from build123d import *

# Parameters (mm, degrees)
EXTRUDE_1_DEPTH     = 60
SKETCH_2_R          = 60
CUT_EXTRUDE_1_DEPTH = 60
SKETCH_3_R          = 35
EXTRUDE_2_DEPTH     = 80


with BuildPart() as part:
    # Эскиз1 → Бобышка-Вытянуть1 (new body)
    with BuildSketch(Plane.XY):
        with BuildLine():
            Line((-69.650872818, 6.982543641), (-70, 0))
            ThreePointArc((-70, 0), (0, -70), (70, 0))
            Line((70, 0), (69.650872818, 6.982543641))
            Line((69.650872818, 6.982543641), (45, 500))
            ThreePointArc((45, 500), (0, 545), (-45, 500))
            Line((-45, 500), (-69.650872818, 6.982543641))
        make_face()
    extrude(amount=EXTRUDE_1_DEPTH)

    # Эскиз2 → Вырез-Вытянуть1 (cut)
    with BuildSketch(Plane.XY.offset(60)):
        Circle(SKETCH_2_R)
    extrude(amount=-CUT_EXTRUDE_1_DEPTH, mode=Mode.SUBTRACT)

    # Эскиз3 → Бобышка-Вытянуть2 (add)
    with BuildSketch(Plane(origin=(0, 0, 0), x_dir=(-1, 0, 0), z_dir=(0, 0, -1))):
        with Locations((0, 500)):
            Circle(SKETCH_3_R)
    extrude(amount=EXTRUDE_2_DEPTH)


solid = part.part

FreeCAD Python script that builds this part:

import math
import FreeCAD as App
import Part
import Sketcher
Q = App.Units.Quantity

doc = App.newDocument("Part")
params = doc.addObject("Spreadsheet::Sheet", "Params")
for row, (alias, value) in enumerate([
    ("sketch1_radius", "70 mm"),
    ("sketch1_radius2", "45 mm"),
    ("pad1_length", "60 mm"),
    ("sketch2_diameter", "120 mm"),
    ("pocket1_length", "60 mm"),
    ("sketch3_diameter", "70 mm"),
    ("pad2_length", "80 mm"),
], start=1):
    params.set(f"A{row}", alias)
    params.set(f"B{row}", "=" + value)
    params.setAlias(f"B{row}", alias)

body = doc.addObject("PartDesign::Body", "Body")

sketch1 = body.newObject("Sketcher::SketchObject", "Sketch")
sketch1.AttachmentSupport = (doc.getObject("XY_Plane"), [""])
sketch1.MapMode = "FlatFace"
sketch1.addGeometry(Part.LineSegment(App.Vector(-70, 7, 0), App.Vector(-70, 0, 0)), False)
sketch1.addGeometry(Part.ArcOfCircle(Part.Circle(App.Vector(0, 0, 0), App.Vector(0, 0, 1), 70), math.radians(180), math.radians(360)), False)
sketch1.addGeometry(Part.LineSegment(App.Vector(70, 0, 0), App.Vector(70, 7, 0)), False)
sketch1.addGeometry(Part.LineSegment(App.Vector(70, 7, 0), App.Vector(45, 500, 0)), False)
sketch1.addGeometry(Part.ArcOfCircle(Part.Circle(App.Vector(0, 500, 0), App.Vector(0, 0, 1), 45), math.radians(0), math.radians(180)), False)
sketch1.addGeometry(Part.LineSegment(App.Vector(-45, 500, 0), App.Vector(-70, 7, 0)), False)
sketch1.addConstraint(Sketcher.Constraint("Coincident", 0, 2, 1, 1))
sketch1.addConstraint(Sketcher.Constraint("Coincident", 1, 2, 2, 1))
sketch1.addConstraint(Sketcher.Constraint("Coincident", 2, 2, 3, 1))
sketch1.addConstraint(Sketcher.Constraint("Coincident", 3, 2, 4, 1))
sketch1.addConstraint(Sketcher.Constraint("Coincident", 4, 2, 5, 1))
sketch1.addConstraint(Sketcher.Constraint("Coincident", 5, 2, 0, 1))
sketch1.addConstraint(Sketcher.Constraint("Coincident", 1, 3, -1, 1))
sketch1.addConstraint(Sketcher.Constraint("Symmetric", 3, 2, 4, 2, -2))
sketch1.addConstraint(Sketcher.Constraint("Symmetric", 2, 2, 5, 2, -2))
sketch1.addConstraint(Sketcher.Constraint("PointOnObject", 0, 2, -1))
sketch1.addConstraint(Sketcher.Constraint("PointOnObject", 1, 2, -1))
sketch1.addConstraint(Sketcher.Constraint("Parallel", 2, 3))
sketch1.addConstraint(Sketcher.Constraint("Horizontal", 4, 3, 3, 2))
sketch1.addConstraint(Sketcher.Constraint("Radius", 1, Q("70 mm")))
sketch1.addConstraint(Sketcher.Constraint("Radius", 4, Q("45 mm")))
sketch1.addConstraint(Sketcher.Constraint("DistanceY", -1, 1, 4, 3, Q("500 mm")))
sketch1.addConstraint(Sketcher.Constraint("Distance", 0, Q("6.991266 mm")))
sketch1.setExpression("Constraints[13]", "Params.sketch1_radius")
sketch1.setExpression("Constraints[14]", "Params.sketch1_radius2")
pad1 = body.newObject("PartDesign::Pad", "Pad")
pad1.Profile = sketch1
pad1.setExpression("Length", "Params.pad1_length")

sketch2 = body.newObject("Sketcher::SketchObject", "Sketch001")
sketch2.AttachmentSupport = (doc.getObject("XY_Plane"), [""])
sketch2.MapMode = "FlatFace"
sketch2.AttachmentOffset = App.Placement(App.Vector(0, 0, 60), App.Rotation())
sketch2.addGeometry(Part.Circle(App.Vector(0, 0, 0), App.Vector(0, 0, 1), 60), False)
sketch2.addConstraint(Sketcher.Constraint("Coincident", 0, 3, -1, 1))
sketch2.addConstraint(Sketcher.Constraint("Diameter", 0, Q("120 mm")))
sketch2.setExpression("Constraints[1]", "Params.sketch2_diameter")
pocket1 = body.newObject("PartDesign::Pocket", "Pocket")
pocket1.Profile = sketch2
pocket1.setExpression("Length", "Params.pocket1_length")

sketch3 = body.newObject("Sketcher::SketchObject", "Sketch002")
sketch3.AttachmentSupport = (doc.getObject("XY_Plane"), [""])
sketch3.MapMode = "FlatFace"
sketch3.addGeometry(Part.Circle(App.Vector(0, 500, 0), App.Vector(0, 0, 1), 35), False)
sketch3.addConstraint(Sketcher.Constraint("PointOnObject", 0, 3, -2))
sketch3.addConstraint(Sketcher.Constraint("Diameter", 0, Q("70 mm")))
sketch3.addConstraint(Sketcher.Constraint("DistanceY", -1, 1, 0, 3, Q("500 mm")))
sketch3.setExpression("Constraints[1]", "Params.sketch3_diameter")
pad2 = body.newObject("PartDesign::Pad", "Pad001")
pad2.Profile = sketch3
pad2.setExpression("Length", "Params.pad2_length")
pad2.Reversed = True

doc.recompute()
